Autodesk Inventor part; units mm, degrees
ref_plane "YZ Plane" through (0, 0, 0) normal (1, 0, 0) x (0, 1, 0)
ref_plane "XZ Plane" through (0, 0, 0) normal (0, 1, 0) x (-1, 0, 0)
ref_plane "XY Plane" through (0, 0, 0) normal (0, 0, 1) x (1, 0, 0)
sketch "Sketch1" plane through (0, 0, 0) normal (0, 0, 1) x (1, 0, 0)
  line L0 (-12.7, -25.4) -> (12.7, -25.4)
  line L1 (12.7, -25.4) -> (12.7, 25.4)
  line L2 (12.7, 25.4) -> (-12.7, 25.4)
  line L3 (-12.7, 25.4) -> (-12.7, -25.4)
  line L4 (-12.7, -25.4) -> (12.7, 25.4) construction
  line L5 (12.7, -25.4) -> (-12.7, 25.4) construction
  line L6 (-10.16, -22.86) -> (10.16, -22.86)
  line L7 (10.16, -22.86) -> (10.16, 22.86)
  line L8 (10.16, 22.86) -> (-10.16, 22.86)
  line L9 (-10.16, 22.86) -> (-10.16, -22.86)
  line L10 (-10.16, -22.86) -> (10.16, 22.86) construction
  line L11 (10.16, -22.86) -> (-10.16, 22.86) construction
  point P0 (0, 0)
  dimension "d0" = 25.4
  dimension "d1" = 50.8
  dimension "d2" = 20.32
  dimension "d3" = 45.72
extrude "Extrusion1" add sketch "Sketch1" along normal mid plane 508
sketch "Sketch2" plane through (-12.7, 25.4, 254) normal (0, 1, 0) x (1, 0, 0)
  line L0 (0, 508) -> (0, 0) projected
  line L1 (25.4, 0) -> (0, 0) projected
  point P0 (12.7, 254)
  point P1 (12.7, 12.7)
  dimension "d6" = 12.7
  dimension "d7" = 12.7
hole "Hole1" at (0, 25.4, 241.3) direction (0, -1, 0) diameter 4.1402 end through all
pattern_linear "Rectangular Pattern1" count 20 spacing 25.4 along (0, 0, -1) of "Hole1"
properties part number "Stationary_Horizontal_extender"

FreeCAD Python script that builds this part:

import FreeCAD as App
import Part
import Sketcher
Q = App.Units.Quantity


def add_polygon(sketch, points):
    """Adds a closed chain of lines whose ends are joined by coincident constraints."""
    first, n = sketch.GeometryCount, len(points)
    for a, b in zip(points, points[1:] + points[:1]):
        sketch.addGeometry(Part.LineSegment(App.Vector(*a, 0), App.Vector(*b, 0)), False)
    for i in range(n):
        sketch.addConstraint(Sketcher.Constraint("Coincident", first + i, 2, first + (i + 1) % n, 1))

doc = App.newDocument("Part")
body = doc.addObject("PartDesign::Body", "Body")

sketch1 = body.newObject("Sketcher::SketchObject", "Sketch")
sketch1.AttachmentSupport = (doc.getObject("XY_Plane"), [""])
sketch1.MapMode = "FlatFace"
add_polygon(sketch1, [(-13, 25), (-13, -25), (13, -25), (13, 25)])
add_polygon(sketch1, [(10, -23), (-10, -23), (-10, 23), (10, 23)])
sketch1.addConstraint([
    Sketcher.Constraint("Vertical", 0),
    Sketcher.Constraint("Horizontal", 1),
    Sketcher.Constraint("Vertical", 2),
    Sketcher.Constraint("Horizontal", 3),
    Sketcher.Constraint("Horizontal", 4),
    Sketcher.Constraint("Vertical", 5),
    Sketcher.Constraint("Horizontal", 6),
    Sketcher.Constraint("Vertical", 7),
    Sketcher.Constraint("Symmetric", 0, 2, 2, 2, -1, 1),
    Sketcher.Constraint("Symmetric", 4, 2, 6, 2, -1, 1),
    Sketcher.Constraint("DistanceX", 1, 1, 1, 2, Q("1 in")),
    Sketcher.Constraint("DistanceY", 0, 2, 0, 1, Q("2 in")),
    Sketcher.Constraint("DistanceX", 4, 2, 4, 1, Q("0.8 in")),
    Sketcher.Constraint("DistanceY", 5, 1, 5, 2, Q("1.8 in")),
])
pad1 = body.newObject("PartDesign::Pad", "Pad")
pad1.Profile = sketch1
pad1.Length = Q("20 in")
pad1.Midplane = True

sketch2 = body.newObject("Sketcher::SketchObject", "Sketch001")
sketch2.AttachmentSupport = (doc.getObject("XZ_Plane"), [""])
sketch2.MapMode = "FlatFace"
sketch2.AttachmentOffset = App.Placement(App.Vector(0, 0, -1 * 25.4), App.Rotation())
sketch2.addGeometry(Part.Circle(App.Vector(0, 241.3, 0), App.Vector(0, 0, 1), 2.1), False)
sketch2.addConstraint([
    Sketcher.Constraint("PointOnObject", 0, 3, -2),
    Sketcher.Constraint("Diameter", 0, Q("0.163 in")),
    Sketcher.Constraint("DistanceY", -1, 1, 0, 3, Q("9.5 in")),
])
doc.recompute()
hole = body.newObject("PartDesign::Hole", "Hole")
hole.Profile = sketch2
hole.ThreadType = "None"
hole.Diameter = Q("0.163 in")
hole.DepthType = "ThroughAll"
hole.Reversed = True
doc.recompute()

linearpattern = body.newObject("PartDesign::LinearPattern", "LinearPattern")
linearpattern.Originals = [hole]
linearpattern.Direction = (doc.getObject("Z_Axis"), [""])
linearpattern.Mode = "offset"
linearpattern.Offset = Q("1 in")
linearpattern.Occurrences = 20
linearpattern.Reversed = True
body.Tip = linearpattern

doc.recompute()
